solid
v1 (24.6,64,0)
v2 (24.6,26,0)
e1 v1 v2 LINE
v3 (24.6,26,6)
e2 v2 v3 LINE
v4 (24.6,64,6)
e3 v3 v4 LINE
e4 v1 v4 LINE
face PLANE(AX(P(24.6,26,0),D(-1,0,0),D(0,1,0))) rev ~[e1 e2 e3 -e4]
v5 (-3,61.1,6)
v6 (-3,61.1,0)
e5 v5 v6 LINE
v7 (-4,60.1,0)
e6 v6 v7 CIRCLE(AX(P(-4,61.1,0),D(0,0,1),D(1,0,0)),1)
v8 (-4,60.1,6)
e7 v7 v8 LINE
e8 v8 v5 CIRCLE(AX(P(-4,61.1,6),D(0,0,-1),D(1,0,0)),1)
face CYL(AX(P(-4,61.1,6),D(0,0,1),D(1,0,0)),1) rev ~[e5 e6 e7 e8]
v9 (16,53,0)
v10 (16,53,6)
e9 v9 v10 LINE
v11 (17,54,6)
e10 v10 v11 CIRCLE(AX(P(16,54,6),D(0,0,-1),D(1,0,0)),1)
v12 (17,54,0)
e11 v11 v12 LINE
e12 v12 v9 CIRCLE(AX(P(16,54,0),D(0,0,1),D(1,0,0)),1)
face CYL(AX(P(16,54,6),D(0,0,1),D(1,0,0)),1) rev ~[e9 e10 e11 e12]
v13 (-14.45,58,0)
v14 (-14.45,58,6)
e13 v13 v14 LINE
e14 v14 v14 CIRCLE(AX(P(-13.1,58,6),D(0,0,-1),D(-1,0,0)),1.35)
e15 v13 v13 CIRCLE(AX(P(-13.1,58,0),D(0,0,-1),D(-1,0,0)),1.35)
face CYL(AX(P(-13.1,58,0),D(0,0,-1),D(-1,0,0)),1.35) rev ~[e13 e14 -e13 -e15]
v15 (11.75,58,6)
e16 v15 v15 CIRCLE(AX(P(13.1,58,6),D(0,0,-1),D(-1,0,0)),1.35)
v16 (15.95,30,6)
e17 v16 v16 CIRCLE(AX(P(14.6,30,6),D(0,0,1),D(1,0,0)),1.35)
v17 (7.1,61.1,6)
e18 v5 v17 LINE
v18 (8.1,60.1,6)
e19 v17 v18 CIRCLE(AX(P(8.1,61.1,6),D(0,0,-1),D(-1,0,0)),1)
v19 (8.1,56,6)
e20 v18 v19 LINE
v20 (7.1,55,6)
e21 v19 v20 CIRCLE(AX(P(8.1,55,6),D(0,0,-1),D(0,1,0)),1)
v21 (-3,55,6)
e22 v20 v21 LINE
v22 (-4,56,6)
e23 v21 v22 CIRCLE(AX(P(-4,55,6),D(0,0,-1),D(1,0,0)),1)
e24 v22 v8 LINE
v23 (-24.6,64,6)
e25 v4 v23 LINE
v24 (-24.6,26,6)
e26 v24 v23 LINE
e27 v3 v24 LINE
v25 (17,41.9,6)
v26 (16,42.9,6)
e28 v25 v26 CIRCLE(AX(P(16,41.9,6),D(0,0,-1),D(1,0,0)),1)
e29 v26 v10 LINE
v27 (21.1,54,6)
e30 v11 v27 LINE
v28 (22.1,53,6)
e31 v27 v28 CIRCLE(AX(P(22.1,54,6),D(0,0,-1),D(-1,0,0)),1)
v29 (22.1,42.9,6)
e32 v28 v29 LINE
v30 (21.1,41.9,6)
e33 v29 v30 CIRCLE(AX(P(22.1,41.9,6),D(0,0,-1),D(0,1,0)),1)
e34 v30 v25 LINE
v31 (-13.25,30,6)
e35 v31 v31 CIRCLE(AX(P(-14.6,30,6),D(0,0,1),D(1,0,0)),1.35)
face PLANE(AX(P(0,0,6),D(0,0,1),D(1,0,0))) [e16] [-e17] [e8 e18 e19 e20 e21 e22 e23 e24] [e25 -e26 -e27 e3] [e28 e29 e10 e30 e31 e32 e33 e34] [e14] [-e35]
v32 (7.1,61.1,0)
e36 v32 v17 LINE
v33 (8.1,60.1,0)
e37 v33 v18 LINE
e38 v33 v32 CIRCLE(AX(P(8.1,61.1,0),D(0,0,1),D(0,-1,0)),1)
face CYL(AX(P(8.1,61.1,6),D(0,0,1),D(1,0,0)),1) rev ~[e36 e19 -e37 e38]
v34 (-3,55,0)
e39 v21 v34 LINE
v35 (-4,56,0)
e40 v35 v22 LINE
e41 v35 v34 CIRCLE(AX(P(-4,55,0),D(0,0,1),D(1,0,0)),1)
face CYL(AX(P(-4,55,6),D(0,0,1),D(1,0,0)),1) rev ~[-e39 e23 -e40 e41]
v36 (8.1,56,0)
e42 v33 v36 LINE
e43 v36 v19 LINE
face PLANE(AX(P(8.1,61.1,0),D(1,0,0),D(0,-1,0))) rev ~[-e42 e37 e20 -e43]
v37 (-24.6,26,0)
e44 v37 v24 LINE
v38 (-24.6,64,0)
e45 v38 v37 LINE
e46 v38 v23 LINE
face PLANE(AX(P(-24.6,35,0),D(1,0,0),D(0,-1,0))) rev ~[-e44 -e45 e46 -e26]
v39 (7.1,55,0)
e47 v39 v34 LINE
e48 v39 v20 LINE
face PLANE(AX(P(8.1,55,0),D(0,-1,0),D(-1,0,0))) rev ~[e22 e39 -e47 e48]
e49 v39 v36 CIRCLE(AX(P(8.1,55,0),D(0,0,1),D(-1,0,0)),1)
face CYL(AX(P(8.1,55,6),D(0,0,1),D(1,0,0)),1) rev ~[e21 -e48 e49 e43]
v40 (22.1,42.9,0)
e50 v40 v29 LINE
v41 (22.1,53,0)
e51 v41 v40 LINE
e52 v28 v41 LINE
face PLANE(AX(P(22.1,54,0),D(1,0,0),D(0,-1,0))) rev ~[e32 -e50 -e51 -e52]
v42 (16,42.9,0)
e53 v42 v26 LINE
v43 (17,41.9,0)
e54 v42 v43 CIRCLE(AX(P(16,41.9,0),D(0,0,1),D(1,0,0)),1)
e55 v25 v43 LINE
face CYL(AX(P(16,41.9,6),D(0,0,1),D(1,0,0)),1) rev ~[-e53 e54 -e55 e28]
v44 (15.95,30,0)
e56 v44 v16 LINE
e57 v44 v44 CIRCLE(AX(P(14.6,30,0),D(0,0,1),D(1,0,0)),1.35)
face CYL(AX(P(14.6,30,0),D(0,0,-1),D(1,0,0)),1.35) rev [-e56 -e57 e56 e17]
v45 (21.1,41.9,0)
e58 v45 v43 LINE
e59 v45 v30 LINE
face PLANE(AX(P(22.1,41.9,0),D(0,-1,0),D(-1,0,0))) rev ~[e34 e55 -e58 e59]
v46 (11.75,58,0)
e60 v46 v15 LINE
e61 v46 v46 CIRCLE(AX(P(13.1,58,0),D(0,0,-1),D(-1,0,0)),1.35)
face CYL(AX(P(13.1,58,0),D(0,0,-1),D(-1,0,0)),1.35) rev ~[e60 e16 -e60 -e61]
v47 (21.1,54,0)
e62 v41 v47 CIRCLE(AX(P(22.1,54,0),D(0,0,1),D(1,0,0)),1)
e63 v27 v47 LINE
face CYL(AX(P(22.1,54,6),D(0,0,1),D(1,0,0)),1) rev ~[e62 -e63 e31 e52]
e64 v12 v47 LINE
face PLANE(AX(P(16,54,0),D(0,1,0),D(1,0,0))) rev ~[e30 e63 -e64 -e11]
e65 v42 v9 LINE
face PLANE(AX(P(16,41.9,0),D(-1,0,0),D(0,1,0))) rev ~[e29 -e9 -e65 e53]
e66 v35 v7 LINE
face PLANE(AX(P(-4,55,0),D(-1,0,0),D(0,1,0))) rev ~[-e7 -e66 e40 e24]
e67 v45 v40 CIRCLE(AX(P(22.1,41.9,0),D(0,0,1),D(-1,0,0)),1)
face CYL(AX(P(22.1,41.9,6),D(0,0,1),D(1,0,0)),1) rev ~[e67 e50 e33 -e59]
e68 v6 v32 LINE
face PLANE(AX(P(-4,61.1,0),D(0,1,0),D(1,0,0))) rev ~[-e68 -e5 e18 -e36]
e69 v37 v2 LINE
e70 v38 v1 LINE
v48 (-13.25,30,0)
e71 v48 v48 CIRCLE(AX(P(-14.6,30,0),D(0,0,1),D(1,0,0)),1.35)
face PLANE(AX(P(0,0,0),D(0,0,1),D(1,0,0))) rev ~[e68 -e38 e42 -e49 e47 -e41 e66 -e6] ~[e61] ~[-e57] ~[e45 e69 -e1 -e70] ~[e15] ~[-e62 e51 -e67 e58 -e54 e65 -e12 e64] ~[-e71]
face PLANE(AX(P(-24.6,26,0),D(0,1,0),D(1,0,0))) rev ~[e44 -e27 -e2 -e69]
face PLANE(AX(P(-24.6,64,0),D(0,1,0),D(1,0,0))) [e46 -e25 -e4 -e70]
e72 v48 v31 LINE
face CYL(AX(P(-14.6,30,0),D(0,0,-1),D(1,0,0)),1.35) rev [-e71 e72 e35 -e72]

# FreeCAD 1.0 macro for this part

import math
import FreeCAD as App
import Part
import Sketcher
Q = App.Units.Quantity


def add_polygon(sketch, points):
    """Adds a closed chain of lines whose ends are joined by coincident constraints."""
    first, n = sketch.GeometryCount, len(points)
    for a, b in zip(points, points[1:] + points[:1]):
        sketch.addGeometry(Part.LineSegment(App.Vector(*a, 0), App.Vector(*b, 0)), False)
    for i in range(n):
        sketch.addConstraint(Sketcher.Constraint("Coincident", first + i, 2, first + (i + 1) % n, 1))

doc = App.newDocument("Part")
body = doc.addObject("PartDesign::Body", "Body")

# Sketch on XY plane
sketch1 = body.newObject("Sketcher::SketchObject", "Sketch")
sketch1.AttachmentSupport = (doc.getObject("XY_Plane"), [""])
sketch1.MapMode = "FlatFace"
add_polygon(sketch1, [(-24.6, 26), (24.6, 26), (24.6, 64), (-24.6, 64)])  # lines 0-3
sketch1.addGeometry(Part.Circle(App.Vector(-14.6, 30, 0), App.Vector(0, 0, 1), 1.35), False)  # 4
sketch1.addGeometry(Part.Circle(App.Vector(14.6, 30, 0), App.Vector(0, 0, 1), 1.35), False)  # 5
add_polygon(sketch1, [(22.1, 41.9), (16, 41.9), (16, 54), (22.1, 54)])  # lines 6-9
add_polygon(sketch1, [(8.1, 61.1), (8.1, 55), (-4, 55), (-4, 61.1)])  # lines 10-13
sketch1.addConstraint([
    Sketcher.Constraint("Horizontal", 0),
    Sketcher.Constraint("Vertical", 1),
    Sketcher.Constraint("Horizontal", 2),
    Sketcher.Constraint("Vertical", 3),
    Sketcher.Constraint("Horizontal", 6),
    Sketcher.Constraint("Vertical", 7),
    Sketcher.Constraint("Horizontal", 8),
    Sketcher.Constraint("Vertical", 9),
    Sketcher.Constraint("Vertical", 10),
    Sketcher.Constraint("Horizontal", 11),
    Sketcher.Constraint("Vertical", 12),
    Sketcher.Constraint("Horizontal", 13),
    Sketcher.Constraint("Equal", 4, 5),
    Sketcher.Constraint("Symmetric", 4, 3, 5, 3, -2),
    Sketcher.Constraint("Equal", 13, 7),
    Sketcher.Constraint("Equal", 8, 10),
    Sketcher.Constraint("DistanceX", 6, 2, 6, 1, Q("6.1 mm")),
    Sketcher.Constraint("DistanceX", 11, 2, 11, 1, Q("12.1 mm")),
    Sketcher.Constraint("Diameter", 4, Q("2.7 mm")),
    Sketcher.Constraint("DistanceY", 1, 1, 1, 2, Q("38 mm")),
    Sketcher.Constraint("DistanceX", 0, 1, 0, 2, Q("49.2 mm")),
    Sketcher.Constraint("DistanceY", -1, 1, 4, 3, Q("30 mm")),
    Sketcher.Constraint("DistanceY", -1, 1, 0, 2, Q("26 mm")),
    Sketcher.Constraint("DistanceX", -1, 1, 6, 2, Q("16 mm")),
    Sketcher.Constraint("DistanceY", -1, 1, 7, 2, Q("54 mm")),
    Sketcher.Constraint("DistanceY", -1, 1, 10, 2, Q("55 mm")),
    Sketcher.Constraint("DistanceX", 11, 2, -1, 1, Q("4 mm")),
    Sketcher.Constraint("DistanceX", 5, 3, 0, 2, Q("10 mm")),
    Sketcher.Constraint("DistanceX", 2, 2, 4, 3, Q("10 mm")),
])
pad1 = body.newObject("PartDesign::Pad", "Pad")
pad1.Profile = sketch1
pad1.Length = 6

# Sketch on XY plane
sketch2 = body.newObject("Sketcher::SketchObject", "Sketch001")
sketch2.AttachmentSupport = (doc.getObject("XY_Plane"), [""])
sketch2.MapMode = "FlatFace"
sketch2.addGeometry([
    Part.Circle(App.Vector(13.1, 58, 0), App.Vector(0, 0, 1), 1.35),
    Part.Circle(App.Vector(-13.1, 58, 0), App.Vector(0, 0, 1), 1.35),
], False)
sketch2.addConstraint([
    Sketcher.Constraint("Equal", 0, 1),
    Sketcher.Constraint("Symmetric", 0, 3, 1, 3, -2),
    Sketcher.Constraint("Diameter", 0, Q("2.7 mm")),
    Sketcher.Constraint("DistanceY", -1, 1, 0, 3, Q("58 mm")),
    Sketcher.Constraint("DistanceX", -1, 1, 0, 3, Q("13.1 mm")),
])
pocket1 = body.newObject("PartDesign::Pocket", "Pocket")
pocket1.Profile = sketch2
pocket1.Type = "ThroughAll"
pocket1.Reversed = True

# Sketch on XY plane
sketch3 = body.newObject("Sketcher::SketchObject", "Sketch002")
sketch3.AttachmentSupport = (doc.getObject("XY_Plane"), [""])
sketch3.MapMode = "FlatFace"
sketch3.AttachmentOffset = App.Placement(App.Vector(0, 0, 6), App.Rotation())
sketch3.addGeometry([
    Part.Circle(App.Vector(-4, 55, 0), App.Vector(0, 0, 1), 1),  # 0
    Part.Circle(App.Vector(8.1, 55, 0), App.Vector(0, 0, 1), 1),  # 1
    Part.Circle(App.Vector(-4, 61.1, 0), App.Vector(0, 0, 1), 1),  # 2
    Part.Circle(App.Vector(8.1, 61.1, 0), App.Vector(0, 0, 1), 1),  # 3
    Part.Circle(App.Vector(16, 54, 0), App.Vector(0, 0, 1), 1),  # 4
    Part.ArcOfCircle(Part.Circle(App.Vector(22.1, 54, 0), App.Vector(0, 0, 1), 1), math.radians(-90), math.radians(180)),  # 5
    Part.LineSegment(App.Vector(21.1, 54, 0), App.Vector(22.1, 54, 0)),  # 6
    Part.LineSegment(App.Vector(22.1, 54, 0), App.Vector(22.1, 53, 0)),  # 7
    Part.Circle(App.Vector(16, 41.9, 0), App.Vector(0, 0, 1), 1),  # 8
    Part.Circle(App.Vector(22.1, 41.9, 0), App.Vector(0, 0, 1), 1),  # 9
], False)
sketch3.addConstraint([
    Sketcher.Constraint("Coincident", 5, 2, 6, 1),
    Sketcher.Constraint("Coincident", 6, 2, 7, 1),
    Sketcher.Constraint("Coincident", 7, 2, 5, 1),
    Sketcher.Constraint("Horizontal", 6),
    Sketcher.Constraint("Vertical", 7),
    Sketcher.Constraint("Coincident", 6, 2, 5, 3),
    Sketcher.Constraint("Equal", 0, 1),
    Sketcher.Constraint("Equal", 1, 2),
    Sketcher.Constraint("Equal", 2, 3),
    Sketcher.Constraint("Equal", 3, 4),
    Sketcher.Constraint("Equal", 4, 5),
    Sketcher.Constraint("Equal", 5, 8),
    Sketcher.Constraint("Equal", 8, 9),
    Sketcher.Constraint("Horizontal", 0, 3, 1, 3),
    Sketcher.Constraint("Horizontal", 2, 3, 3, 3),
    Sketcher.Constraint("Horizontal", 4, 3, 5, 3),
    Sketcher.Constraint("Horizontal", 8, 3, 9, 3),
    Sketcher.Constraint("Vertical", 0, 3, 2, 3),
    Sketcher.Constraint("Vertical", 1, 3, 3, 3),
    Sketcher.Constraint("Vertical", 4, 3, 8, 3),
    Sketcher.Constraint("Vertical", 5, 3, 9, 3),
    Sketcher.Constraint("Diameter", 0, Q("2 mm")),
    Sketcher.Constraint("DistanceX", 0, 3, -1, 1, Q("4 mm")),
    Sketcher.Constraint("DistanceY", -1, 1, 0, 3, Q("55 mm")),
    Sketcher.Constraint("DistanceX", -1, 1, 4, 3, Q("16 mm")),
    Sketcher.Constraint("DistanceY", -1, 1, 4, 3, Q("54 mm")),
    Sketcher.Constraint("DistanceX", 1, 3, 5, 3, Q("14 mm")),
    Sketcher.Constraint("DistanceX", -1, 1, 1, 3, Q("8.1 mm")),
    Sketcher.Constraint("DistanceY", -1, 1, 2, 3, Q("61.1 mm")),
    Sketcher.Constraint("DistanceY", -1, 1, 8, 3, Q("41.9 mm")),
])
pocket2 = body.newObject("PartDesign::Pocket", "Pocket001")
pocket2.Profile = sketch3
pocket2.Length = 10

doc.recompute()
